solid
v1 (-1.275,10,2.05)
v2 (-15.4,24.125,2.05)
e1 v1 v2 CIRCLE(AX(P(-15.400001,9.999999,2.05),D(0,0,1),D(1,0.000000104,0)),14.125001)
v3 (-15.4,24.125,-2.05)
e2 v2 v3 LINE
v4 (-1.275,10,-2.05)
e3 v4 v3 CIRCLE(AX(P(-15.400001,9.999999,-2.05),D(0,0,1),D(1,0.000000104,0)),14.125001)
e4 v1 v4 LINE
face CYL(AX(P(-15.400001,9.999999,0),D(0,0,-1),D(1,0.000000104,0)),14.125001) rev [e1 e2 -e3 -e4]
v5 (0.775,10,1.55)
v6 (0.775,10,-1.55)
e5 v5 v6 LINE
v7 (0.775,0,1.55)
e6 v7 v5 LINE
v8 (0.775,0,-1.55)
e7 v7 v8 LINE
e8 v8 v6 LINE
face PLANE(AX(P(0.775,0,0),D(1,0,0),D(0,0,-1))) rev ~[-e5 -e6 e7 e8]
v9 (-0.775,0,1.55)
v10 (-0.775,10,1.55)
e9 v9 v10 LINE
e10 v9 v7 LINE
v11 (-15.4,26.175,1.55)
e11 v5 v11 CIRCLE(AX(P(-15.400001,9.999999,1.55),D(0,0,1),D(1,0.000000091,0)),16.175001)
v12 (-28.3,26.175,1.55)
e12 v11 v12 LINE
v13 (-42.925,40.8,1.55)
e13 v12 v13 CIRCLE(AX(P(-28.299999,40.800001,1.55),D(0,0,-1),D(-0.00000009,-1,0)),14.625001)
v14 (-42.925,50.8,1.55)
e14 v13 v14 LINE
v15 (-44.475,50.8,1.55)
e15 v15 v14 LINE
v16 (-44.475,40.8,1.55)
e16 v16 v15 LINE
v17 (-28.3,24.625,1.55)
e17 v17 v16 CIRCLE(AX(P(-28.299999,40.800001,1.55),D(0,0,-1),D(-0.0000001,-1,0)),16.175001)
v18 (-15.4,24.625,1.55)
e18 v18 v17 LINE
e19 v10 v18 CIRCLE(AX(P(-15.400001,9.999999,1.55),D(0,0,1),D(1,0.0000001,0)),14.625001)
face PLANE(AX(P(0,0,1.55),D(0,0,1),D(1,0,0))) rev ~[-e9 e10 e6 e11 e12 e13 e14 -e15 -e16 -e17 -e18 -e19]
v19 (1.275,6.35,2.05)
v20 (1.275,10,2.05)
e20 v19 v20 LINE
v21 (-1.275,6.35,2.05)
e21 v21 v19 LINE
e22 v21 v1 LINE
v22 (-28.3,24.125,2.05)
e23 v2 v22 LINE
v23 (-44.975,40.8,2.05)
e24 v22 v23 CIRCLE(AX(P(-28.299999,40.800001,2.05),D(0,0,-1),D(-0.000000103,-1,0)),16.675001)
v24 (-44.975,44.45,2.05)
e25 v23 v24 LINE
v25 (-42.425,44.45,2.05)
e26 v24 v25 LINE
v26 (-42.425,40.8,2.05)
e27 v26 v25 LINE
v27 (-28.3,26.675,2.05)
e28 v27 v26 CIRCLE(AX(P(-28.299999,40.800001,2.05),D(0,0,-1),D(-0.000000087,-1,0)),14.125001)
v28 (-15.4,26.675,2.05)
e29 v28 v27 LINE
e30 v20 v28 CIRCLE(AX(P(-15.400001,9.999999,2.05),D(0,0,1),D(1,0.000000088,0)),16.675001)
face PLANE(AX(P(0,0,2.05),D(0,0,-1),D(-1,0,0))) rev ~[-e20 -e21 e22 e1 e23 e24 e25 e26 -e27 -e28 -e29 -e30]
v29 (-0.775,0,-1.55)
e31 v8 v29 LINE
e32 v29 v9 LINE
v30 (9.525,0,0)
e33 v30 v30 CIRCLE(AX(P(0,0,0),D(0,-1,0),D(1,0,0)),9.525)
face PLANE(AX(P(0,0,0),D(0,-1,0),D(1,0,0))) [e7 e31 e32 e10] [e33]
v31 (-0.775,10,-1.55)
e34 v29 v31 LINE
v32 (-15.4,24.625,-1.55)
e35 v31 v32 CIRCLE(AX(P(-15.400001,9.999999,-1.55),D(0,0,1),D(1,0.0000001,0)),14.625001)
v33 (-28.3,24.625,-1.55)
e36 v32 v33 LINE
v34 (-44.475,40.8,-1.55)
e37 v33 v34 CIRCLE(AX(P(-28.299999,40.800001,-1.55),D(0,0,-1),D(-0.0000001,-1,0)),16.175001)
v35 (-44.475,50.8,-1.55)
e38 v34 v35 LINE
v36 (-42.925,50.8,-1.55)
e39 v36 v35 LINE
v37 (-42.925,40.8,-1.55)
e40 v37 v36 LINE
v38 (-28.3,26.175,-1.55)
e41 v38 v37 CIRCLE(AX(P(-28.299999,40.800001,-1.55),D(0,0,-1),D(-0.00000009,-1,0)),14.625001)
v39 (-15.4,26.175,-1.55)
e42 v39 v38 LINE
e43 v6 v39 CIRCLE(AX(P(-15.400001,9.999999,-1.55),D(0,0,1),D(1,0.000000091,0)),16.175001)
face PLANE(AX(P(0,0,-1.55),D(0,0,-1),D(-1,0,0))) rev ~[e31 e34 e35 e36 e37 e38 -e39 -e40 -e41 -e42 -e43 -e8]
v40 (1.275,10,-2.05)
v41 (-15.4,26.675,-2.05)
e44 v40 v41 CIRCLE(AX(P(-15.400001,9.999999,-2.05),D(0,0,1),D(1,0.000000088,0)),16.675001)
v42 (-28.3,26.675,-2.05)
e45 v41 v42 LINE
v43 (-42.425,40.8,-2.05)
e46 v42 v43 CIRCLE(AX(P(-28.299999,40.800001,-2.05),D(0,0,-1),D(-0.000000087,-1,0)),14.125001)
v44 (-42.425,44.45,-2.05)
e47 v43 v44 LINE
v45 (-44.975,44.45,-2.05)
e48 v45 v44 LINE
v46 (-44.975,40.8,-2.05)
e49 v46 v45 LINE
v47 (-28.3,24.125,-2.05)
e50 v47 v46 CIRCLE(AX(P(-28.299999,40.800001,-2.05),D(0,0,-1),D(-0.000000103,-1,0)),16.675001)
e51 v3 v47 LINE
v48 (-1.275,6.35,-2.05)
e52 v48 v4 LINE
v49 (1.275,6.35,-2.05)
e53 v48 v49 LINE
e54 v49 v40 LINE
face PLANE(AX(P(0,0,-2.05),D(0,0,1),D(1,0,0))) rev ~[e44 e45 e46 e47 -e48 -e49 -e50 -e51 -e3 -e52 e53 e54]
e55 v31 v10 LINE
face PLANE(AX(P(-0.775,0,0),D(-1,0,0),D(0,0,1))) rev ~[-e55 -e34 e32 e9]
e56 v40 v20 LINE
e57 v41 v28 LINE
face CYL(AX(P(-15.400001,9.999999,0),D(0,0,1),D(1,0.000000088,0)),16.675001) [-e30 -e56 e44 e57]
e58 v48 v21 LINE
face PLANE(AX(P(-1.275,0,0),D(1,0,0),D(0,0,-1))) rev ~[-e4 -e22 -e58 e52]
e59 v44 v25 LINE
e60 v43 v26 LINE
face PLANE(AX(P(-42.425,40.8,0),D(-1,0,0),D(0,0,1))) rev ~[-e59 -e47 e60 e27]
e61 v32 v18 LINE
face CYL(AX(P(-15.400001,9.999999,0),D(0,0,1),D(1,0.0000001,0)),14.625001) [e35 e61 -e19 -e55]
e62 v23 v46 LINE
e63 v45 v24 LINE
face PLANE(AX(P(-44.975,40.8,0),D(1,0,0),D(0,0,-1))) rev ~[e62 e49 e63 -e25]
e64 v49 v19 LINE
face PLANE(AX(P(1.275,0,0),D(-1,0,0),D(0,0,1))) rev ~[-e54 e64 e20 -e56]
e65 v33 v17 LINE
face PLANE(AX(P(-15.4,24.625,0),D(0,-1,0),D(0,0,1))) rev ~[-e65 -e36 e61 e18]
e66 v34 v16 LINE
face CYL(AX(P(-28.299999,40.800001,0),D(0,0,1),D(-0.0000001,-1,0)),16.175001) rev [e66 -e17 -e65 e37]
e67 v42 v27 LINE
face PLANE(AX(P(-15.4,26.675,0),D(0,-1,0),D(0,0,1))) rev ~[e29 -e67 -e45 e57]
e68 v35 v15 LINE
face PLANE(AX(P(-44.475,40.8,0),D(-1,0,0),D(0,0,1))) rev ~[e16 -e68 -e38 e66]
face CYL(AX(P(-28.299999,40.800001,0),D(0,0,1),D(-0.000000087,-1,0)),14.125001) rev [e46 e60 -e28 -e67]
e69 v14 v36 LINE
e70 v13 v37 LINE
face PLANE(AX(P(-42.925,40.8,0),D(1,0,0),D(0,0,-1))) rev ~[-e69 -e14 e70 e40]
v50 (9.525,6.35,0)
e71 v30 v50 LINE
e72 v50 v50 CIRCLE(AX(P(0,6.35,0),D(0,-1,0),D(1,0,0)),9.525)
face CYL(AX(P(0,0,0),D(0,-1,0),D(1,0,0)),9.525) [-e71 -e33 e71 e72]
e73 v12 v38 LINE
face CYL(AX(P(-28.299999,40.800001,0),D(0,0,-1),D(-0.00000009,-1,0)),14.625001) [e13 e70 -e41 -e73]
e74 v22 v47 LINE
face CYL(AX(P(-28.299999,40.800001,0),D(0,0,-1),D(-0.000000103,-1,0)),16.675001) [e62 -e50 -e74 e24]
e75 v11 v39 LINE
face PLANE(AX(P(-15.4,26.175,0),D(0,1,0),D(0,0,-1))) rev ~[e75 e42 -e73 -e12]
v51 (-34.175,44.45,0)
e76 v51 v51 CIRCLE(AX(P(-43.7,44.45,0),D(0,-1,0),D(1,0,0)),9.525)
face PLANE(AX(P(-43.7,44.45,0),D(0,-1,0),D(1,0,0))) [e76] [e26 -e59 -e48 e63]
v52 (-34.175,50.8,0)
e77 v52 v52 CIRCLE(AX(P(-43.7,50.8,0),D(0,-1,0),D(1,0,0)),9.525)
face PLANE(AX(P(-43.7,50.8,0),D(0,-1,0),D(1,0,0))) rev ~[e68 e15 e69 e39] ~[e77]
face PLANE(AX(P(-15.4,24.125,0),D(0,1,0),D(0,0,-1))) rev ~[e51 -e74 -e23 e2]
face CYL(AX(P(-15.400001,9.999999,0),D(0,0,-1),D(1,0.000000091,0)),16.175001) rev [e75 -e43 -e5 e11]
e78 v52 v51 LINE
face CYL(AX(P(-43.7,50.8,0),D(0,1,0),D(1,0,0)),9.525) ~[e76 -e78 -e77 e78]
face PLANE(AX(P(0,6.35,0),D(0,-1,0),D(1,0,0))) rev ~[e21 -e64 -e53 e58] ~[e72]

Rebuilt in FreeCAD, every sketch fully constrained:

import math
import FreeCAD as App
import Part
import Sketcher
Q = App.Units.Quantity


def add_polygon(sketch, points):
    """Adds a closed chain of lines whose ends are joined by coincident constraints."""
    first, n = sketch.GeometryCount, len(points)
    for a, b in zip(points, points[1:] + points[:1]):
        sketch.addGeometry(Part.LineSegment(App.Vector(*a, 0), App.Vector(*b, 0)), False)
    for i in range(n):
        sketch.addConstraint(Sketcher.Constraint("Coincident", first + i, 2, first + (i + 1) % n, 1))

doc = App.newDocument("Part")
body = doc.addObject("PartDesign::Body", "Body")

sketch1 = body.newObject("Sketcher::SketchObject", "Sketch")
sketch1.AttachmentSupport = (doc.getObject("XZ_Plane"), [""])
sketch1.MapMode = "FlatFace"
add_polygon(sketch1, [(-1.275, 2.05), (-1.275, -2.05), (1.275, -2.05), (1.275, 2.05)])
add_polygon(sketch1, [(0.775, -1.55), (-0.775, -1.55), (-0.775, 1.55), (0.775, 1.55)])
sketch1.addConstraint([
    Sketcher.Constraint("Vertical", 0),
    Sketcher.Constraint("Horizontal", 1),
    Sketcher.Constraint("Vertical", 2),
    Sketcher.Constraint("Horizontal", 3),
    Sketcher.Constraint("Horizontal", 4),
    Sketcher.Constraint("Vertical", 5),
    Sketcher.Constraint("Horizontal", 6),
    Sketcher.Constraint("Vertical", 7),
    Sketcher.Constraint("Symmetric", 0, 2, 2, 2, -1, 1),
    Sketcher.Constraint("Symmetric", 4, 2, 6, 2, -1, 1),
    Sketcher.Constraint("DistanceY", 0, 2, 0, 1, Q("4.1 mm")),
    Sketcher.Constraint("DistanceY", 5, 1, 5, 2, Q("3.1 mm")),
    Sketcher.Constraint("DistanceX", 1, 1, 1, 2, Q("2.55 mm")),
    Sketcher.Constraint("DistanceX", 4, 2, 4, 1, Q("1.55 mm")),
])

sketch2 = body.newObject("Sketcher::SketchObject", "Sketch001")
sketch2.AttachmentSupport = (doc.getObject("XY_Plane"), [""])
sketch2.MapMode = "FlatFace"
sketch2.addGeometry([
    Part.LineSegment(App.Vector(0, 0, 0), App.Vector(0, 10, 0)),
    Part.ArcOfCircle(Part.Circle(App.Vector(-15.400001, 9.999999, 0), App.Vector(0, 0, 1), 15.400001), math.radians(0.000005), math.radians(89.999995)),
    Part.LineSegment(App.Vector(-15.4, 25.4, 0), App.Vector(-28.3, 25.4, 0)),
    Part.ArcOfCircle(Part.Circle(App.Vector(-28.299999, 40.800001, 0), App.Vector(0, 0, 1), 15.400001), math.radians(-179.999995), math.radians(-90.000005)),
    Part.LineSegment(App.Vector(-43.7, 40.8, 0), App.Vector(-43.7, 50.8, 0)),
], False)
sketch2.addConstraint([
    Sketcher.Constraint("Tangent", 0, 2, 1, 1),
    Sketcher.Constraint("Tangent", 1, 2, 2, 1),
    Sketcher.Constraint("Tangent", 2, 2, 3, 2),
    Sketcher.Constraint("Tangent", 3, 1, 4, 1),
    Sketcher.Constraint("Vertical", 0),
    Sketcher.Constraint("Horizontal", 2),
    Sketcher.Constraint("Vertical", 4),
    Sketcher.Constraint("Coincident", 0, 1, -1, 1),
    Sketcher.Constraint("Equal", 1, 3),
    Sketcher.Constraint("Equal", 0, 4),
    Sketcher.Constraint("Radius", 1, Q("15.400001 mm")),
    Sketcher.Constraint("DistanceY", 0, 1, 0, 2, Q("10 mm")),
    Sketcher.Constraint("DistanceX", 2, 2, 2, 1, Q("12.9 mm")),
])
doc.recompute()

additivepipe = body.newObject("PartDesign::AdditivePipe", "AdditivePipe")
additivepipe.Profile = sketch1
additivepipe.Spine = (sketch2, ["Edge1", "Edge2", "Edge3", "Edge4", "Edge5"])

sketch3 = body.newObject("Sketcher::SketchObject", "Sketch002")
sketch3.AttachmentSupport = (doc.getObject("XZ_Plane"), [""])
sketch3.MapMode = "FlatFace"
sketch3.addGeometry(Part.Circle(App.Vector(0, 0, 0), App.Vector(0, 0, 1), 9.525), False)
add_polygon(sketch3, [(1.275, -2.05), (-1.275, -2.05), (-1.275, 2.05), (1.275, 2.05)])
sketch3.addConstraint([
    Sketcher.Constraint("Horizontal", 1),
    Sketcher.Constraint("Vertical", 2),
    Sketcher.Constraint("Horizontal", 3),
    Sketcher.Constraint("Vertical", 4),
    Sketcher.Constraint("Coincident", 0, 3, -1, 1),
    Sketcher.Constraint("Symmetric", 1, 2, 3, 2, -1, 1),
    Sketcher.Constraint("Diameter", 0, Q("19.05 mm")),
    Sketcher.Constraint("DistanceY", 2, 1, 2, 2, Q("4.1 mm")),
    Sketcher.Constraint("DistanceX", 1, 2, 1, 1, Q("2.55 mm")),
])
pad1 = body.newObject("PartDesign::Pad", "Pad")
pad1.Profile = sketch3
pad1.Length = 6.35
pad1.Reversed = True

sketch4 = body.newObject("Sketcher::SketchObject", "Sketch003")
sketch4.AttachmentSupport = (doc.getObject("XZ_Plane"), [""])
sketch4.MapMode = "FlatFace"
sketch4.AttachmentOffset = App.Placement(App.Vector(0, 0, -50.8), App.Rotation())
sketch4.addGeometry(Part.Circle(App.Vector(-43.7, 0, 0), App.Vector(0, 0, 1), 9.525), False)
add_polygon(sketch4, [(-42.425, -2.05), (-44.975, -2.05), (-44.975, 2.05), (-42.425, 2.05)])
sketch4.addConstraint([
    Sketcher.Constraint("Horizontal", 1),
    Sketcher.Constraint("Vertical", 2),
    Sketcher.Constraint("Horizontal", 3),
    Sketcher.Constraint("Vertical", 4),
    Sketcher.Constraint("PointOnObject", 0, 3, -1),
    Sketcher.Constraint("Diameter", 0, Q("19.05 mm")),
    Sketcher.Constraint("DistanceY", 2, 1, 2, 2, Q("4.1 mm")),
    Sketcher.Constraint("DistanceX", 1, 2, 1, 1, Q("2.55 mm")),
    Sketcher.Constraint("DistanceX", 0, 3, -1, 1, Q("43.7 mm")),
    Sketcher.Constraint("DistanceY", 1, 2, -1, 1, Q("2.05 mm")),
    Sketcher.Constraint("DistanceX", 1, 2, -1, 1, Q("44.975 mm")),
])
pad2 = body.newObject("PartDesign::Pad", "Pad001")
pad2.Profile = sketch4
pad2.Length = 6.35

doc.recompute()
